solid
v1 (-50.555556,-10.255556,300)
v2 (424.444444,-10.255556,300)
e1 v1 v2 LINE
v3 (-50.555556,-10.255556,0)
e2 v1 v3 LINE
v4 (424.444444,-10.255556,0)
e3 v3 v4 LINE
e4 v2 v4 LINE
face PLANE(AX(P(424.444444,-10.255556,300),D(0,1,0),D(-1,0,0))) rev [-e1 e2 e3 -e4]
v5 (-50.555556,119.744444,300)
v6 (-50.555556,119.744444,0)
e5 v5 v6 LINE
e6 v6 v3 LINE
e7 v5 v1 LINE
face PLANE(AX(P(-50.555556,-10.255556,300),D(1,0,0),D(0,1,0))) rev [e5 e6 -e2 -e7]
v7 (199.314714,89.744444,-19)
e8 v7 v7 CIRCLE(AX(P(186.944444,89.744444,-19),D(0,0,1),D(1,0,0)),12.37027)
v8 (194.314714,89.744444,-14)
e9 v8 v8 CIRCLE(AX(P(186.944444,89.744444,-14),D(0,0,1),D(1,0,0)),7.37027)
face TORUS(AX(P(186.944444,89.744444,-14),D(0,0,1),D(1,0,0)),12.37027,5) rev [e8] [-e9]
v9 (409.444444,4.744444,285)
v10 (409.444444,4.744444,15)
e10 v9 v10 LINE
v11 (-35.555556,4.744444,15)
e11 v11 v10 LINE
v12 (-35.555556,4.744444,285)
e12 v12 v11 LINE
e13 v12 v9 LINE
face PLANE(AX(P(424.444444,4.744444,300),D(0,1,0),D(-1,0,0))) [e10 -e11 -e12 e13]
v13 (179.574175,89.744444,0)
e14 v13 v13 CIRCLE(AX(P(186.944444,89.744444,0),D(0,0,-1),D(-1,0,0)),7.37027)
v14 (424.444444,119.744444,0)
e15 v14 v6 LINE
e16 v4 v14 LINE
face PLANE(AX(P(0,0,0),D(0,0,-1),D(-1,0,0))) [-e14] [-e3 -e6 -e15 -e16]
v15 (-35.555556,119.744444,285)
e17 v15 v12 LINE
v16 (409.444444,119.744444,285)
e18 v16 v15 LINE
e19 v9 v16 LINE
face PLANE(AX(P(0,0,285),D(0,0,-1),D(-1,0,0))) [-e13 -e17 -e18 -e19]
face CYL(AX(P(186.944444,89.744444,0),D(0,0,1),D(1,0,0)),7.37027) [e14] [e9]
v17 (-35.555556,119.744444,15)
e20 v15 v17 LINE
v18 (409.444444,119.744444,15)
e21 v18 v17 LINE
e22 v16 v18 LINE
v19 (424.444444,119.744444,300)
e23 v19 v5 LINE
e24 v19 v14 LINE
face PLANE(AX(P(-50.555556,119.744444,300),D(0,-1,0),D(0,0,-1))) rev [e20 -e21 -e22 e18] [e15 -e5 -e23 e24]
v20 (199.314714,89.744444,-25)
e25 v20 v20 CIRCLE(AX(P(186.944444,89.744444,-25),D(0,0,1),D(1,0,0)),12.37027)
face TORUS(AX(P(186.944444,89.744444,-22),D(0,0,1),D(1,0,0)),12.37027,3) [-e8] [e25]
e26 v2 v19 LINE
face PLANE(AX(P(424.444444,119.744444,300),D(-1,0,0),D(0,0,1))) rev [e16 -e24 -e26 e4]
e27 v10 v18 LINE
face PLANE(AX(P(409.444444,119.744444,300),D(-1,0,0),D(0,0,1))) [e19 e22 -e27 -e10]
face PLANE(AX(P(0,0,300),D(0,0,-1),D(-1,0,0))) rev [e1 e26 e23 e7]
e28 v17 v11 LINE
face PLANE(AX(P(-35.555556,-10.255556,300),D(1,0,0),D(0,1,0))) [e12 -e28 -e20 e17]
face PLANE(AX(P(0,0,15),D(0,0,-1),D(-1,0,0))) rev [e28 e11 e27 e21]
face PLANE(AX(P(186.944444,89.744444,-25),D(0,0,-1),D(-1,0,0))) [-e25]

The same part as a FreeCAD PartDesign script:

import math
import FreeCAD as App
import Part
import Sketcher
from FreeCAD import Vector
Q = App.Units.Quantity


def faces_at(feature, points):
    """Names of the faces that lie closest to the given points."""
    faces = feature.Shape.Faces
    near = lambda p: min(range(len(faces)), key=lambda i: faces[i].distToShape(Part.Vertex(*p))[0])
    return sorted({f"Face{near(p) + 1}" for p in points})


def add_polygon(sketch, points):
    """Adds a closed chain of lines whose ends are joined by coincident constraints."""
    first, n = sketch.GeometryCount, len(points)
    for a, b in zip(points, points[1:] + points[:1]):
        sketch.addGeometry(Part.LineSegment(App.Vector(*a, 0), App.Vector(*b, 0)), False)
    for i in range(n):
        sketch.addConstraint(Sketcher.Constraint("Coincident", first + i, 2, first + (i + 1) % n, 1))

doc = App.newDocument("Part")
body = doc.addObject("PartDesign::Body", "Body")

# Sketch on XY plane
sketch1 = doc.addObject("Sketcher::SketchObject", "Sketch")
body.addObject(sketch1)
sketch1.AttachmentSupport = (doc.XY_Plane, [""])
sketch1.MapMode = "FlatFace"
add_polygon(sketch1, [(-51, 120), (-51, -10), (424, -10), (424, 120)])  # lines 0-3
sketch1.addConstraint([
    Sketcher.Constraint("Vertical", 0),
    Sketcher.Constraint("Horizontal", 1),
    Sketcher.Constraint("Vertical", 2),
    Sketcher.Constraint("Horizontal", 3),
    Sketcher.Constraint("DistanceX", 1, 1, 1, 2, Q("475 mm")),
    Sketcher.Constraint("DistanceY", 0, 2, 0, 1, Q("130 mm")),
    Sketcher.Constraint("DistanceX", 0, 2, -1, 1, Q("50.555556 mm")),
    Sketcher.Constraint("DistanceY", 0, 2, -1, 1, Q("10.255556 mm")),
])
pad1 = doc.addObject("PartDesign::Pad", "Pad")
body.addObject(pad1)
pad1.Profile = sketch1
pad1.Length = 300
doc.recompute()

thickness = doc.addObject("PartDesign::Thickness", "Thickness")
body.addObject(thickness)
thickness.Base = (pad1, faces_at(pad1, [(186.944, 119.744, 150)]))
thickness.Value = 15
thickness.Reversed = True
thickness.Join = "Intersection"

# Sketch on YZ plane
sketch2 = doc.addObject("Sketcher::SketchObject", "Sketch001")
body.addObject(sketch2)
sketch2.AttachmentSupport = (doc.YZ_Plane, [""])
sketch2.MapMode = "FlatFace"
sketch2.AttachmentOffset = App.Placement(Vector(0, 0, 186.944444), App.Rotation())
sketch2.addGeometry([
    Part.LineSegment(Vector(89.7, -25, 0), Vector(89.7, 0, 0)),  # 0
    Part.LineSegment(Vector(89.7, 0, 0), Vector(97.1, 0, 0)),  # 1
    Part.LineSegment(Vector(97.1, 0, 0), Vector(97.1, -14, 0)),  # 2
    Part.ArcOfCircle(Part.Circle(Vector(102.1, -14, 0), Vector(0, 0, 1), 5), math.radians(180), math.radians(270)),  # 3
    Part.ArcOfCircle(Part.Circle(Vector(102.1, -22, 0), Vector(0, 0, 1), 3), math.radians(-90), math.radians(90)),  # 4
    Part.LineSegment(Vector(102.1, -25, 0), Vector(89.7, -25, 0)),  # 5
], False)
sketch2.addGeometry(Part.LineSegment(Vector(89.7, 0, 0), Vector(89.7, -25, 0)), True)  # axis
sketch2.addConstraint([
    Sketcher.Constraint("Coincident", 0, 2, 1, 1),
    Sketcher.Constraint("Coincident", 1, 2, 2, 1),
    Sketcher.Constraint("Tangent", 2, 2, 3, 1),
    Sketcher.Constraint("Tangent", 3, 2, 4, 2),
    Sketcher.Constraint("Tangent", 4, 1, 5, 1),
    Sketcher.Constraint("Coincident", 5, 2, 0, 1),
    Sketcher.Constraint("Vertical", 0),
    Sketcher.Constraint("Horizontal", 1),
    Sketcher.Constraint("Vertical", 2),
    Sketcher.Constraint("Horizontal", 5),
    Sketcher.Constraint("Vertical", 6),
    Sketcher.Constraint("Coincident", 6, 1, 0, 2),
    Sketcher.Constraint("PointOnObject", 0, 2, -1),
    Sketcher.Constraint("Horizontal", 4, 1, 6, 2),
    Sketcher.Constraint("Vertical", 3, 3, 4, 3),
    Sketcher.Constraint("Radius", 3, Q("5 mm")),
    Sketcher.Constraint("Radius", 4, Q("3 mm")),
    Sketcher.Constraint("DistanceY", 0, 1, 0, 2, Q("25 mm")),
    Sketcher.Constraint("DistanceX", 1, 1, 1, 2, Q("7.37027 mm")),
    Sketcher.Constraint("DistanceX", -1, 1, 3, 3, Q("102.114714 mm")),
])
revolution = doc.addObject("PartDesign::Revolution", "Revolution")
body.addObject(revolution)
revolution.Profile = sketch2
revolution.ReferenceAxis = (sketch2, ["Axis0"])
revolution.Angle = 360

doc.recompute()
